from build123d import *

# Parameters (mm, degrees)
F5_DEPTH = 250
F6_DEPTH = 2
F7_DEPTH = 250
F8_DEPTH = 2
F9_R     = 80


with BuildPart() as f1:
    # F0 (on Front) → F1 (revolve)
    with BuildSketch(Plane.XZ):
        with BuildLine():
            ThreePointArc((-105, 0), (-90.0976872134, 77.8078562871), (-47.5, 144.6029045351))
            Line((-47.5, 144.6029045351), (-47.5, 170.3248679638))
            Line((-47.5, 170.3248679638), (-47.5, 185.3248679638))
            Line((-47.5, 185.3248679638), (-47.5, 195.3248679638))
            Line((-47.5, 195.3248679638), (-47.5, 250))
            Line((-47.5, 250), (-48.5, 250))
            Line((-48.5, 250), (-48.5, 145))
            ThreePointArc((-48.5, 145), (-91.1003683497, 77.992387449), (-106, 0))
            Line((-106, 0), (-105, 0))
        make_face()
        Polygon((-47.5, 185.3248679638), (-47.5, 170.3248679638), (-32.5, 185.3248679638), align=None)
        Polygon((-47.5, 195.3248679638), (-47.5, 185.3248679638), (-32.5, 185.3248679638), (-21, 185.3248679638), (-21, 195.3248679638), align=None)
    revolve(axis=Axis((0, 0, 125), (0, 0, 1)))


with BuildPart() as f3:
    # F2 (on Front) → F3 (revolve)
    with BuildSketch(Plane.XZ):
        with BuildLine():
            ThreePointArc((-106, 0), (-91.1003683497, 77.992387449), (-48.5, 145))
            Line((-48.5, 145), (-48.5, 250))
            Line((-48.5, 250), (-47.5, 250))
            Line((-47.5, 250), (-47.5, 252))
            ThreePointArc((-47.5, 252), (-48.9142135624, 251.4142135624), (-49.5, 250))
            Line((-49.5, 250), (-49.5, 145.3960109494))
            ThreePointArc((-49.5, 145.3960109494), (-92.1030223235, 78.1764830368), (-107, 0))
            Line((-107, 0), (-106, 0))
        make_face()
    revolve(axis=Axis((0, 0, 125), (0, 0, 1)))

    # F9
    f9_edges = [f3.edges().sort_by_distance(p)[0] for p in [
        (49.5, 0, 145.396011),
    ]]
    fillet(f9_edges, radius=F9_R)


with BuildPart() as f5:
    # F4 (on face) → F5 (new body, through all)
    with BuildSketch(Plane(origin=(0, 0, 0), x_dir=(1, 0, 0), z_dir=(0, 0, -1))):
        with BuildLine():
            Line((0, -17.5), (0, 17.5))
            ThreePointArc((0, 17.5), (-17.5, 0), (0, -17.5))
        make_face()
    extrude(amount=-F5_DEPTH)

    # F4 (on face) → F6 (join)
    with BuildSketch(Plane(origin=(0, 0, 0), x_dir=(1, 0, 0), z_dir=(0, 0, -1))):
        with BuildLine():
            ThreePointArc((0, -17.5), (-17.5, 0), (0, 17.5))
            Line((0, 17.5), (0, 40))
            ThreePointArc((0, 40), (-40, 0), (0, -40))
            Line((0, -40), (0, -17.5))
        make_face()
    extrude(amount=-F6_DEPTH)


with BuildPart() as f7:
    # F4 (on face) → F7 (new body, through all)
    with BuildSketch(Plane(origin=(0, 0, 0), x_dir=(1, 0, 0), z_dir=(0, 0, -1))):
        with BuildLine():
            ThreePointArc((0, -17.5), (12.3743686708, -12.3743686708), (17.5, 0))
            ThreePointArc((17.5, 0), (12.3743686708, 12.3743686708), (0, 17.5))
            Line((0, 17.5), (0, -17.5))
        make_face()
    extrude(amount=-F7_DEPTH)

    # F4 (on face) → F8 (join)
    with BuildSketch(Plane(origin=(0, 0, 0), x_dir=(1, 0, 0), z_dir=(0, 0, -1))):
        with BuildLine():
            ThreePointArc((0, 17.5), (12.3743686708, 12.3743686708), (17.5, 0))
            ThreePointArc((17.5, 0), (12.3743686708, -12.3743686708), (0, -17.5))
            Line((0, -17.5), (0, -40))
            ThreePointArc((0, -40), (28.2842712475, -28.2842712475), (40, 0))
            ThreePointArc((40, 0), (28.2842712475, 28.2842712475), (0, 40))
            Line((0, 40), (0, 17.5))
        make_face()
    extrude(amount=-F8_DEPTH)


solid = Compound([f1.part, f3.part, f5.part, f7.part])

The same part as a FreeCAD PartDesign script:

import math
import FreeCAD as App
import Part
import Sketcher
from FreeCAD import Vector
Q = App.Units.Quantity


def edges_at(feature, points):
    """Names of the edges that pass closest to the given points."""
    edges = feature.Shape.Edges
    near = lambda p: min(range(len(edges)), key=lambda i: edges[i].distToShape(Part.Vertex(*p))[0])
    return sorted({f"Edge{near(p) + 1}" for p in points})

doc = App.newDocument("Part")
params = doc.addObject("Spreadsheet::Sheet", "Params")
for row, (alias, value) in enumerate([
    ("sketch1_width", "1 mm"),
    ("sketch1_height", "10 mm"),
    ("sketch1_height2", "105 mm"),
    ("sketch1_width2", "11.5 mm"),
    ("sketch1_width3", "26.5 mm"),
    ("revolution_angle", "360 deg"),
    ("sketch2_radius", "2 mm"),
    ("sketch2_width", "1 mm"),
    ("sketch2_height", "105 mm"),
    ("revolution2_angle", "360 deg"),
    ("fillet_radius", "80 mm"),
    ("sketch3_radius", "17.5 mm"),
    ("pad1_length", "250 mm"),
    ("sketch4_radius", "40 mm"),
    ("sketch4_radius2", "17.5 mm"),
    ("pad2_length", "2 mm"),
    ("sketch5_radius", "17.5 mm"),
    ("pad3_length", "250 mm"),
    ("sketch6_radius", "40 mm"),
    ("sketch6_radius2", "17.5 mm"),
    ("pad4_length", "2 mm"),
], start=1):
    params.set(f"A{row}", alias)
    params.set(f"B{row}", "=" + value)
    params.setAlias(f"B{row}", alias)

body = doc.addObject("PartDesign::Body", "Body")

sketch1 = body.newObject("Sketcher::SketchObject", "Sketch")
sketch1.AttachmentSupport = (doc.getObject("XZ_Plane"), [""])
sketch1.MapMode = "FlatFace"
sketch1.addGeometry([
    Part.ArcOfCircle(Part.Circle(Vector(105.6, 0, 0), Vector(0, 0, 1), 210.6), math.radians(137), math.radians(180)),
    Part.LineSegment(Vector(-47.5, 144.6, 0), Vector(-47.5, 170.3, 0)),
    Part.LineSegment(Vector(-47.5, 170.3, 0), Vector(-32.5, 185.3, 0)),
    Part.LineSegment(Vector(-32.5, 185.3, 0), Vector(-21, 185.3, 0)),
    Part.LineSegment(Vector(-21, 185.3, 0), Vector(-21, 195.3, 0)),
    Part.LineSegment(Vector(-21, 195.3, 0), Vector(-47.5, 195.3, 0)),
    Part.LineSegment(Vector(-47.5, 195.3, 0), Vector(-47.5, 250, 0)),
    Part.LineSegment(Vector(-47.5, 250, 0), Vector(-48.5, 250, 0)),
    Part.LineSegment(Vector(-48.5, 250, 0), Vector(-48.5, 145, 0)),
    Part.ArcOfCircle(Part.Circle(Vector(105.6, 0, 0), Vector(0, 0, 1), 211.6), math.radians(137), math.radians(180)),
    Part.LineSegment(Vector(-106, 0, 0), Vector(-105, 0, 0)),
], False)
sketch1.addConstraint([
    Sketcher.Constraint("Coincident", 0, 1, 1, 1),
    Sketcher.Constraint("Coincident", 1, 2, 2, 1),
    Sketcher.Constraint("Coincident", 2, 2, 3, 1),
    Sketcher.Constraint("Coincident", 3, 2, 4, 1),
    Sketcher.Constraint("Coincident", 4, 2, 5, 1),
    Sketcher.Constraint("Coincident", 5, 2, 6, 1),
    Sketcher.Constraint("Coincident", 6, 2, 7, 1),
    Sketcher.Constraint("Coincident", 7, 2, 8, 1),
    Sketcher.Constraint("Coincident", 8, 2, 9, 1),
    Sketcher.Constraint("Coincident", 9, 2, 10, 1),
    Sketcher.Constraint("Coincident", 10, 2, 0, 2),
    Sketcher.Constraint("Vertical", 1),
    Sketcher.Constraint("Horizontal", 3),
    Sketcher.Constraint("Vertical", 4),
    Sketcher.Constraint("Horizontal", 5),
    Sketcher.Constraint("Vertical", 6),
    Sketcher.Constraint("Horizontal", 7),
    Sketcher.Constraint("Vertical", 8),
    Sketcher.Constraint("Horizontal", 10),
    Sketcher.Constraint("Coincident", 9, 3, 0, 3),
    Sketcher.Constraint("PointOnObject", 0, 3, -1),
    Sketcher.Constraint("PointOnObject", 9, 2, -1),
    Sketcher.Constraint("Vertical", 1, 2, 5, 2),
    Sketcher.Constraint("Equal", 7, 10),
    Sketcher.Constraint("DistanceX", 7, 2, 7, 1, Q("1 mm")),
    Sketcher.Constraint("DistanceY", 4, 1, 4, 2, Q("10 mm")),
    Sketcher.Constraint("DistanceY", 8, 2, 8, 1, Q("105 mm")),
    Sketcher.Constraint("Angle", 2, Q("45 deg")),
    Sketcher.Constraint("DistanceX", 3, 1, 3, 2, Q("11.5 mm")),
    Sketcher.Constraint("DistanceX", 5, 2, 5, 1, Q("26.5 mm")),
    Sketcher.Constraint("DistanceX", 3, 2, -1, 1, Q("21 mm")),
    Sketcher.Constraint("DistanceY", -1, 1, 6, 2, Q("250 mm")),
    Sketcher.Constraint("DistanceX", 9, 2, -1, 1, Q("106 mm")),
    Sketcher.Constraint("DistanceY", 1, 1, 1, 2, Q("25.721963 mm")),
])
sketch1.setExpression("Constraints[24]", "Params.sketch1_width")
sketch1.setExpression("Constraints[25]", "Params.sketch1_height")
sketch1.setExpression("Constraints[26]", "Params.sketch1_height2")
sketch1.setExpression("Constraints[28]", "Params.sketch1_width2")
sketch1.setExpression("Constraints[29]", "Params.sketch1_width3")
revolution = body.newObject("PartDesign::Revolution", "Revolution")
revolution.Profile = sketch1
revolution.ReferenceAxis = (sketch1, ["V_Axis"])
revolution.setExpression("Angle", "Params.revolution_angle")
body2 = doc.addObject("PartDesign::Body", "Body001")

sketch2 = body2.newObject("Sketcher::SketchObject", "Sketch001")
sketch2.AttachmentSupport = (doc.getObject("XZ_Plane001"), [""])
sketch2.MapMode = "FlatFace"
sketch2.addGeometry([
    Part.ArcOfCircle(Part.Circle(Vector(105.6, 0, 0), Vector(0, 0, 1), 211.6), math.radians(137), math.radians(180)),
    Part.LineSegment(Vector(-48.5, 145, 0), Vector(-48.5, 250, 0)),
    Part.LineSegment(Vector(-48.5, 250, 0), Vector(-47.5, 250, 0)),
    Part.LineSegment(Vector(-47.5, 250, 0), Vector(-47.5, 252, 0)),
    Part.ArcOfCircle(Part.Circle(Vector(-47.5, 250, 0), Vector(0, 0, 1), 2), math.radians(90), math.radians(180)),
    Part.LineSegment(Vector(-49.5, 250, 0), Vector(-49.5, 145.4, 0)),
    Part.ArcOfCircle(Part.Circle(Vector(105.6, 0, 0), Vector(0, 0, 1), 212.6), math.radians(137), math.radians(180)),
    Part.LineSegment(Vector(-107, 0, 0), Vector(-106, 0, 0)),
], False)
sketch2.addConstraint([
    Sketcher.Constraint("Coincident", 0, 1, 1, 1),
    Sketcher.Constraint("Coincident", 1, 2, 2, 1),
    Sketcher.Constraint("Coincident", 2, 2, 3, 1),
    Sketcher.Constraint("Coincident", 3, 2, 4, 1),
    Sketcher.Constraint("Tangent", 4, 2, 5, 1),
    Sketcher.Constraint("Coincident", 5, 2, 6, 1),
    Sketcher.Constraint("Coincident", 6, 2, 7, 1),
    Sketcher.Constraint("Coincident", 7, 2, 0, 2),
    Sketcher.Constraint("Vertical", 1),
    Sketcher.Constraint("Horizontal", 2),
    Sketcher.Constraint("Vertical", 3),
    Sketcher.Constraint("Vertical", 5),
    Sketcher.Constraint("Horizontal", 7),
    Sketcher.Constraint("Coincident", 6, 3, 0, 3),
    Sketcher.Constraint("Coincident", 2, 2, 4, 3),
    Sketcher.Constraint("PointOnObject", 0, 3, -1),
    Sketcher.Constraint("PointOnObject", 6, 2, -1),
    Sketcher.Constraint("Equal", 2, 7),
    Sketcher.Constraint("Radius", 4, Q("2 mm")),
    Sketcher.Constraint("DistanceX", 2, 1, 2, 2, Q("1 mm")),
    Sketcher.Constraint("DistanceY", 1, 1, 1, 2, Q("105 mm")),
    Sketcher.Constraint("DistanceY", -1, 1, 4, 3, Q("250 mm")),
    Sketcher.Constraint("DistanceX", 6, 2, -1, 1, Q("107 mm")),
    Sketcher.Constraint("DistanceX", 4, 3, -1, 1, Q("47.5 mm")),
])
sketch2.setExpression("Constraints[18]", "Params.sketch2_radius")
sketch2.setExpression("Constraints[19]", "Params.sketch2_width")
sketch2.setExpression("Constraints[20]", "Params.sketch2_height")
revolution2 = body2.newObject("PartDesign::Revolution", "Revolution001")
revolution2.Profile = sketch2
revolution2.ReferenceAxis = (sketch2, ["V_Axis"])
revolution2.setExpression("Angle", "Params.revolution2_angle")
doc.recompute()

fillet = body2.newObject("PartDesign::Fillet", "Fillet")
fillet.Base = (revolution2, edges_at(revolution2, [(49.5, 0, 145.396)]))
fillet.setExpression("Radius", "Params.fillet_radius")
body3 = doc.addObject("PartDesign::Body", "Body002")

sketch3 = body3.newObject("Sketcher::SketchObject", "Sketch002")
sketch3.AttachmentSupport = (doc.getObject("XY_Plane002"), [""])
sketch3.MapMode = "FlatFace"
sketch3.addGeometry([
    Part.LineSegment(Vector(0, 18, 0), Vector(0, -18, 0)),
    Part.ArcOfCircle(Part.Circle(Vector(0, 0, 0), Vector(0, 0, 1), 18), math.radians(90), math.radians(270)),
], False)
sketch3.addConstraint([
    Sketcher.Constraint("Coincident", 0, 1, 1, 1),
    Sketcher.Constraint("Coincident", 1, 2, 0, 2),
    Sketcher.Constraint("Vertical", 0),
    Sketcher.Constraint("Coincident", 1, 3, -1, 1),
    Sketcher.Constraint("PointOnObject", 0, 1, -2),
    Sketcher.Constraint("Radius", 1, Q("17.5 mm")),
])
sketch3.setExpression("Constraints[5]", "Params.sketch3_radius")
pad1 = body3.newObject("PartDesign::Pad", "Pad")
pad1.Profile = sketch3
pad1.setExpression("Length", "Params.pad1_length")

sketch4 = body3.newObject("Sketcher::SketchObject", "Sketch003")
sketch4.AttachmentSupport = (doc.getObject("XY_Plane002"), [""])
sketch4.MapMode = "FlatFace"
sketch4.addGeometry([
    Part.ArcOfCircle(Part.Circle(Vector(0, 0, 0), Vector(0, 0, 1), 18), math.radians(90), math.radians(270)),
    Part.LineSegment(Vector(0, -18, 0), Vector(0, -40, 0)),
    Part.ArcOfCircle(Part.Circle(Vector(0, 0, 0), Vector(0, 0, 1), 40), math.radians(90), math.radians(270)),
    Part.LineSegment(Vector(0, 40, 0), Vector(0, 18, 0)),
], False)
sketch4.addConstraint([
    Sketcher.Constraint("Coincident", 0, 2, 1, 1),
    Sketcher.Constraint("Coincident", 1, 2, 2, 2),
    Sketcher.Constraint("Coincident", 2, 1, 3, 1),
    Sketcher.Constraint("Coincident", 3, 2, 0, 1),
    Sketcher.Constraint("Vertical", 1),
    Sketcher.Constraint("Vertical", 3),
    Sketcher.Constraint("Coincident", 0, 3, -1, 1),
    Sketcher.Constraint("Coincident", 2, 3, -1, 1),
    Sketcher.Constraint("PointOnObject", 0, 2, -2),
    Sketcher.Constraint("PointOnObject", 2, 1, -2),
    Sketcher.Constraint("Radius", 2, Q("40 mm")),
    Sketcher.Constraint("Radius", 0, Q("17.5 mm")),
])
sketch4.setExpression("Constraints[10]", "Params.sketch4_radius")
sketch4.setExpression("Constraints[11]", "Params.sketch4_radius2")
pad2 = body3.newObject("PartDesign::Pad", "Pad001")
pad2.Profile = sketch4
pad2.setExpression("Length", "Params.pad2_length")
body4 = doc.addObject("PartDesign::Body", "Body003")

sketch5 = body4.newObject("Sketcher::SketchObject", "Sketch004")
sketch5.AttachmentSupport = (doc.getObject("XY_Plane003"), [""])
sketch5.MapMode = "FlatFace"
sketch5.addGeometry([
    Part.ArcOfCircle(Part.Circle(Vector(0, 0, 0), Vector(0, 0, 1), 18), math.radians(0), math.radians(90)),
    Part.ArcOfCircle(Part.Circle(Vector(0, 0, 0), Vector(0, 0, 1), 18), math.radians(-90), math.radians(0)),
    Part.LineSegment(Vector(0, -18, 0), Vector(0, 18, 0)),
], False)
sketch5.addConstraint([
    Sketcher.Constraint("Tangent", 0, 1, 1, 2),
    Sketcher.Constraint("Coincident", 1, 1, 2, 1),
    Sketcher.Constraint("Coincident", 2, 2, 0, 2),
    Sketcher.Constraint("Vertical", 2),
    Sketcher.Constraint("Coincident", 0, 3, -1, 1),
    Sketcher.Constraint("Equal", 0, 1),
    Sketcher.Constraint("PointOnObject", 0, 1, -1),
    Sketcher.Constraint("PointOnObject", 1, 1, -2),
    Sketcher.Constraint("Radius", 0, Q("17.5 mm")),
])
sketch5.setExpression("Constraints[8]", "Params.sketch5_radius")
pad3 = body4.newObject("PartDesign::Pad", "Pad002")
pad3.Profile = sketch5
pad3.setExpression("Length", "Params.pad3_length")

sketch6 = body4.newObject("Sketcher::SketchObject", "Sketch005")
sketch6.AttachmentSupport = (doc.getObject("XY_Plane003"), [""])
sketch6.MapMode = "FlatFace"
sketch6.addGeometry([
    Part.ArcOfCircle(Part.Circle(Vector(0, 0, 0), Vector(0, 0, 1), 18), math.radians(-90), math.radians(0)),
    Part.ArcOfCircle(Part.Circle(Vector(0, 0, 0), Vector(0, 0, 1), 18), math.radians(0), math.radians(90)),
    Part.LineSegment(Vector(0, 18, 0), Vector(0, 40, 0)),
    Part.ArcOfCircle(Part.Circle(Vector(0, 0, 0), Vector(0, 0, 1), 40), math.radians(0), math.radians(90)),
    Part.ArcOfCircle(Part.Circle(Vector(0, 0, 0), Vector(0, 0, 1), 40), math.radians(-90), math.radians(0)),
    Part.LineSegment(Vector(0, -40, 0), Vector(0, -18, 0)),
], False)
sketch6.addConstraint([
    Sketcher.Constraint("Tangent", 0, 2, 1, 1),
    Sketcher.Constraint("Coincident", 1, 2, 2, 1),
    Sketcher.Constraint("Coincident", 2, 2, 3, 2),
    Sketcher.Constraint("Tangent", 3, 1, 4, 2),
    Sketcher.Constraint("Coincident", 4, 1, 5, 1),
    Sketcher.Constraint("Coincident", 5, 2, 0, 1),
    Sketcher.Constraint("Vertical", 2),
    Sketcher.Constraint("Vertical", 5),
    Sketcher.Constraint("Coincident", 0, 3, -1, 1),
    Sketcher.Constraint("Coincident", 3, 3, -1, 1),
    Sketcher.Constraint("Equal", 0, 1),
    Sketcher.Constraint("Equal", 3, 4),
    Sketcher.Constraint("PointOnObject", 0, 2, -1),
    Sketcher.Constraint("PointOnObject", 1, 2, -2),
    Sketcher.Constraint("PointOnObject", 3, 1, -1),
    Sketcher.Constraint("PointOnObject", 4, 1, -2),
    Sketcher.Constraint("Radius", 3, Q("40 mm")),
    Sketcher.Constraint("Radius", 0, Q("17.5 mm")),
])
sketch6.setExpression("Constraints[16]", "Params.sketch6_radius")
sketch6.setExpression("Constraints[17]", "Params.sketch6_radius2")
pad4 = body4.newObject("PartDesign::Pad", "Pad003")
pad4.Profile = sketch6
pad4.setExpression("Length", "Params.pad4_length")

doc.recompute()
